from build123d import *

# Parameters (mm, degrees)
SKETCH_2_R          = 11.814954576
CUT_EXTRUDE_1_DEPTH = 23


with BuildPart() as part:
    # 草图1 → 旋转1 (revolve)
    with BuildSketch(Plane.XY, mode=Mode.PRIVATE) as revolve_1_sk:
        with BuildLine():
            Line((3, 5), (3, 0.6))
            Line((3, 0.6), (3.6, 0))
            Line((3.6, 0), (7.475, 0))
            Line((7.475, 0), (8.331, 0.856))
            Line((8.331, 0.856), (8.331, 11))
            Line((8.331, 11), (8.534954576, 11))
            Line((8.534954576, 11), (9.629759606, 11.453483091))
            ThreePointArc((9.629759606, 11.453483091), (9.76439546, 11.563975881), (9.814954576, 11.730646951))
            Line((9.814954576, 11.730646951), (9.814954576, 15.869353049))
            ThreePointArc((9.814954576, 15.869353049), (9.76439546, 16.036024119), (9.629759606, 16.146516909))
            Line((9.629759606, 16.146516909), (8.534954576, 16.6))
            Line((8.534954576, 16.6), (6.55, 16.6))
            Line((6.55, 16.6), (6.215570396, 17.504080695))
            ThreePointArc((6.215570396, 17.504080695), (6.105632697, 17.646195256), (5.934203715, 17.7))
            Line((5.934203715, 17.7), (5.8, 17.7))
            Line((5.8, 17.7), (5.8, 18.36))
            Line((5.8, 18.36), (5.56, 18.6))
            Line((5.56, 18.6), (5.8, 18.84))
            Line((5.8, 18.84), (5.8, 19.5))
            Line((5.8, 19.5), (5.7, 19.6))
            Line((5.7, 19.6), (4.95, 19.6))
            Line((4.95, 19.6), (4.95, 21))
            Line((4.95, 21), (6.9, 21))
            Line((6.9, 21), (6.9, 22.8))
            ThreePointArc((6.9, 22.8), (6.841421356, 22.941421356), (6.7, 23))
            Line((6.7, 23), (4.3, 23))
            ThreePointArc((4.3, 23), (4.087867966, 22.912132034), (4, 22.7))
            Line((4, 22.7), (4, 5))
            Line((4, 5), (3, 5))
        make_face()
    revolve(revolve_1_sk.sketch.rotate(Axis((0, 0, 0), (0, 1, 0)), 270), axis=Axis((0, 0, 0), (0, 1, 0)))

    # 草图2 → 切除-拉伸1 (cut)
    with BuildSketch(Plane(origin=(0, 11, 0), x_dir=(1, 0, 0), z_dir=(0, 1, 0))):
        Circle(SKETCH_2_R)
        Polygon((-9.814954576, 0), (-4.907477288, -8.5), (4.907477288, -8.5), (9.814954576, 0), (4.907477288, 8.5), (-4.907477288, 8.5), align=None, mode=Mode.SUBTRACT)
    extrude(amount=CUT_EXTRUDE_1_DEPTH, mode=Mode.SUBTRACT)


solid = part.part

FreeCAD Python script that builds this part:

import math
import FreeCAD as App
import Part
import Sketcher

V = App.Vector
Q = App.Units.Quantity


def add_polygon(sketch, points):
    """Adds a closed chain of lines whose ends are joined by coincident constraints."""
    first, n = sketch.GeometryCount, len(points)
    for a, b in zip(points, points[1:] + points[:1]):
        sketch.addGeometry(Part.LineSegment(App.Vector(*a, 0), App.Vector(*b, 0)), False)
    for i in range(n):
        sketch.addConstraint(Sketcher.Constraint("Coincident", first + i, 2, first + (i + 1) % n, 1))

doc = App.newDocument("Part")
params = doc.addObject("Spreadsheet::Sheet", "Params")
for row, (alias, value) in enumerate([
    ("sketch1_radius", "0.3 mm"),
    ("sketch1_radius2", "0.2 mm"),
    ("sketch1_width", "1 mm"),
    ("sketch1_width2", "2.4 mm"),
    ("sketch1_height", "4.4 mm"),
    ("revolution_angle", "360 deg"),
    ("pocket1_length", "23 mm"),
], start=1):
    params.set(f"A{row}", alias)
    params.set(f"B{row}", "=" + value)
    params.setAlias(f"B{row}", alias)

body = doc.addObject("PartDesign::Body", "Body")

sketch1 = body.newObject("Sketcher::SketchObject", "Sketch")
sketch1.AttachmentSupport = (doc.getObject("XY_Plane"), [""])
sketch1.MapMode = "FlatFace"
sketch1.addGeometry([
    Part.LineSegment(V(3, 5, 0), V(3, 0.6, 0)),
    Part.LineSegment(V(3, 0.6, 0), V(3.6, 0, 0)),
    Part.LineSegment(V(3.6, 0, 0), V(7.475, 0, 0)),
    Part.LineSegment(V(7.475, 0, 0), V(8.331, 0.856, 0)),
    Part.LineSegment(V(8.331, 0.856, 0), V(8.331, 11, 0)),
    Part.LineSegment(V(8.331, 11, 0), V(8.534955, 11, 0)),
    Part.LineSegment(V(8.534955, 11, 0), V(9.62976, 11.453483, 0)),
    Part.ArcOfCircle(Part.Circle(V(9.514955, 11.730647, 0), V(0, 0, 1), 0.3), math.radians(-67.5), math.radians(0)),
    Part.LineSegment(V(9.814955, 11.730647, 0), V(9.814955, 15.869353, 0)),
    Part.ArcOfCircle(Part.Circle(V(9.514955, 15.869353, 0), V(0, 0, 1), 0.3), math.radians(0), math.radians(67.5)),
    Part.LineSegment(V(9.62976, 16.146517, 0), V(8.534955, 16.6, 0)),
    Part.LineSegment(V(8.534955, 16.6, 0), V(6.55, 16.6, 0)),
    Part.LineSegment(V(6.55, 16.6, 0), V(6.21557, 17.504081, 0)),
    Part.ArcOfCircle(Part.Circle(V(5.934204, 17.4, 0), V(0, 0, 1), 0.3), math.radians(20.3), math.radians(90)),
    Part.LineSegment(V(5.934204, 17.7, 0), V(5.8, 17.7, 0)),
    Part.LineSegment(V(5.8, 17.7, 0), V(5.8, 18.36, 0)),
    Part.LineSegment(V(5.8, 18.36, 0), V(5.56, 18.6, 0)),
    Part.LineSegment(V(5.56, 18.6, 0), V(5.8, 18.84, 0)),
    Part.LineSegment(V(5.8, 18.84, 0), V(5.8, 19.5, 0)),
    Part.LineSegment(V(5.8, 19.5, 0), V(5.7, 19.6, 0)),
    Part.LineSegment(V(5.7, 19.6, 0), V(4.95, 19.6, 0)),
    Part.LineSegment(V(4.95, 19.6, 0), V(4.95, 21, 0)),
    Part.LineSegment(V(4.95, 21, 0), V(6.9, 21, 0)),
    Part.LineSegment(V(6.9, 21, 0), V(6.9, 22.8, 0)),
    Part.ArcOfCircle(Part.Circle(V(6.7, 22.8, 0), V(0, 0, 1), 0.2), math.radians(0), math.radians(90)),
    Part.LineSegment(V(6.7, 23, 0), V(4.3, 23, 0)),
    Part.ArcOfCircle(Part.Circle(V(4.3, 22.7, 0), V(0, 0, 1), 0.3), math.radians(90), math.radians(180)),
    Part.LineSegment(V(4, 22.7, 0), V(4, 5, 0)),
    Part.LineSegment(V(4, 5, 0), V(3, 5, 0)),
], False)
sketch1.addConstraint([
    Sketcher.Constraint("Coincident", 0, 2, 1, 1),
    Sketcher.Constraint("Coincident", 1, 2, 2, 1),
    Sketcher.Constraint("Coincident", 2, 2, 3, 1),
    Sketcher.Constraint("Coincident", 3, 2, 4, 1),
    Sketcher.Constraint("Coincident", 4, 2, 5, 1),
    Sketcher.Constraint("Coincident", 5, 2, 6, 1),
    Sketcher.Constraint("Tangent", 6, 2, 7, 1),
    Sketcher.Constraint("Tangent", 7, 2, 8, 1),
    Sketcher.Constraint("Tangent", 8, 2, 9, 1),
    Sketcher.Constraint("Tangent", 9, 2, 10, 1),
    Sketcher.Constraint("Coincident", 10, 2, 11, 1),
    Sketcher.Constraint("Coincident", 11, 2, 12, 1),
    Sketcher.Constraint("Tangent", 12, 2, 13, 1),
    Sketcher.Constraint("Tangent", 13, 2, 14, 1),
    Sketcher.Constraint("Coincident", 14, 2, 15, 1),
    Sketcher.Constraint("Coincident", 15, 2, 16, 1),
    Sketcher.Constraint("Coincident", 16, 2, 17, 1),
    Sketcher.Constraint("Coincident", 17, 2, 18, 1),
    Sketcher.Constraint("Coincident", 18, 2, 19, 1),
    Sketcher.Constraint("Coincident", 19, 2, 20, 1),
    Sketcher.Constraint("Coincident", 20, 2, 21, 1),
    Sketcher.Constraint("Coincident", 21, 2, 22, 1),
    Sketcher.Constraint("Coincident", 22, 2, 23, 1),
    Sketcher.Constraint("Tangent", 23, 2, 24, 1),
    Sketcher.Constraint("Tangent", 24, 2, 25, 1),
    Sketcher.Constraint("Tangent", 25, 2, 26, 1),
    Sketcher.Constraint("Tangent", 26, 2, 27, 1),
    Sketcher.Constraint("Coincident", 27, 2, 28, 1),
    Sketcher.Constraint("Coincident", 28, 2, 0, 1),
    Sketcher.Constraint("Vertical", 0),
    Sketcher.Constraint("Horizontal", 2),
    Sketcher.Constraint("Vertical", 4),
    Sketcher.Constraint("Horizontal", 5),
    Sketcher.Constraint("Vertical", 8),
    Sketcher.Constraint("Horizontal", 11),
    Sketcher.Constraint("Horizontal", 14),
    Sketcher.Constraint("Vertical", 15),
    Sketcher.Constraint("Vertical", 18),
    Sketcher.Constraint("Horizontal", 20),
    Sketcher.Constraint("Vertical", 21),
    Sketcher.Constraint("Horizontal", 22),
    Sketcher.Constraint("Vertical", 23),
    Sketcher.Constraint("Horizontal", 25),
    Sketcher.Constraint("Vertical", 27),
    Sketcher.Constraint("Horizontal", 28),
    Sketcher.Constraint("Equal", 7, 9),
    Sketcher.Constraint("Equal", 9, 13),
    Sketcher.Constraint("Equal", 13, 26),
    Sketcher.Constraint("PointOnObject", 1, 2, -1),
    Sketcher.Constraint("Perpendicular", 1, 3),
    Sketcher.Constraint("Perpendicular", 3, 16),
    Sketcher.Constraint("Perpendicular", 16, 17),
    Sketcher.Constraint("Perpendicular", 17, 19),
    Sketcher.Constraint("Vertical", 6, 2, 9, 2),
    Sketcher.Constraint("Vertical", 5, 2, 10, 2),
    Sketcher.Constraint("Vertical", 15, 2, 17, 2),
    Sketcher.Constraint("Equal", 15, 18),
    Sketcher.Constraint("Equal", 16, 17),
    Sketcher.Constraint("Radius", 7, Q("0.3 mm")),
    Sketcher.Constraint("Radius", 24, Q("0.2 mm")),
    Sketcher.Constraint("DistanceX", 28, 2, 28, 1, Q("1 mm")),
    Sketcher.Constraint("DistanceX", 25, 2, 25, 1, Q("2.4 mm")),
    Sketcher.Constraint("DistanceY", 0, 2, 0, 1, Q("4.4 mm")),
    Sketcher.Constraint("DistanceY", 21, 1, 21, 2, Q("1.4 mm")),
    Sketcher.Constraint("DistanceY", 23, 1, 23, 2, Q("1.8 mm")),
    Sketcher.Constraint("DistanceY", 27, 2, 27, 1, Q("17.7 mm")),
    Sketcher.Constraint("DistanceX", -1, 1, 0, 2, Q("3 mm")),
    Sketcher.Constraint("DistanceY", -1, 1, 4, 2, Q("11 mm")),
    Sketcher.Constraint("DistanceY", -1, 1, 21, 2, Q("21 mm")),
    Sketcher.Constraint("Angle", 6, Q("22.5 deg")),
    Sketcher.Constraint("Angle", 12, Q("110.3 deg")),
    Sketcher.Constraint("DistanceY", 16, 2, 19, 2, Q("1 mm")),
    Sketcher.Constraint("DistanceX", 20, 2, 20, 1, Q("0.75 mm")),
    Sketcher.Constraint("DistanceX", 22, 1, 22, 2, Q("1.95 mm")),
    Sketcher.Constraint("DistanceY", 15, 1, 15, 2, Q("0.66 mm")),
    Sketcher.Constraint("DistanceY", -1, 1, 13, 3, Q("17.4 mm")),
    Sketcher.Constraint("DistanceY", -1, 1, 10, 2, Q("16.6 mm")),
    Sketcher.Constraint("DistanceX", 2, 1, 2, 2, Q("3.875 mm")),
    Sketcher.Constraint("DistanceY", 4, 1, 4, 2, Q("10.144 mm")),
    Sketcher.Constraint("DistanceX", -1, 1, 11, 2, Q("6.55 mm")),
    Sketcher.Constraint("DistanceX", 5, 2, 7, 3, Q("0.98 mm")),
    Sketcher.Constraint("DistanceX", 5, 1, 5, 2, Q("0.203955 mm")),
])
sketch1.setExpression("Constraints[58]", "Params.sketch1_radius")
sketch1.setExpression("Constraints[59]", "Params.sketch1_radius2")
sketch1.setExpression("Constraints[60]", "Params.sketch1_width")
sketch1.setExpression("Constraints[61]", "Params.sketch1_width2")
sketch1.setExpression("Constraints[62]", "Params.sketch1_height")
revolution = body.newObject("PartDesign::Revolution", "Revolution")
revolution.Profile = sketch1
revolution.ReferenceAxis = (sketch1, ["V_Axis"])
revolution.setExpression("Angle", "Params.revolution_angle")

sketch2 = body.newObject("Sketcher::SketchObject", "Sketch001")
sketch2.AttachmentSupport = (doc.getObject("XZ_Plane"), [""])
sketch2.MapMode = "FlatFace"
sketch2.AttachmentOffset = App.Placement(V(0, 0, -11), App.Rotation())
sketch2.addGeometry(Part.Circle(V(0, 0, 0), V(0, 0, 1), 11.814955), False)
add_polygon(sketch2, [(-4.907477, 8.5), (-9.814955, 0), (-4.907477, -8.5), (4.907477, -8.5), (9.814955, 0), (4.907477, 8.5)])
sketch2.addConstraint([
    Sketcher.Constraint("Horizontal", 3),
    Sketcher.Constraint("Horizontal", 6),
    Sketcher.Constraint("Coincident", 0, 3, -1, 1),
    Sketcher.Constraint("Symmetric", 1, 2, 4, 2, -1, 1),
    Sketcher.Constraint("Symmetric", 2, 2, 5, 2, -1, 1),
    Sketcher.Constraint("PointOnObject", 1, 2, -1),
    Sketcher.Constraint("Parallel", 1, 4),
    Sketcher.Constraint("Vertical", 3, 2, 5, 2),
    Sketcher.Constraint("Angle", 1, Q("-120 deg")),
    Sketcher.Constraint("DistanceY", 3, 2, 5, 2, Q("17 mm")),
    Sketcher.Constraint("Diameter", 0, Q("23.629909 mm")),
    Sketcher.Constraint("DistanceX", 3, 1, 3, 2, Q("9.814955 mm")),
])
pocket1 = body.newObject("PartDesign::Pocket", "Pocket")
pocket1.Profile = sketch2
pocket1.setExpression("Length", "Params.pocket1_length")

doc.recompute()
